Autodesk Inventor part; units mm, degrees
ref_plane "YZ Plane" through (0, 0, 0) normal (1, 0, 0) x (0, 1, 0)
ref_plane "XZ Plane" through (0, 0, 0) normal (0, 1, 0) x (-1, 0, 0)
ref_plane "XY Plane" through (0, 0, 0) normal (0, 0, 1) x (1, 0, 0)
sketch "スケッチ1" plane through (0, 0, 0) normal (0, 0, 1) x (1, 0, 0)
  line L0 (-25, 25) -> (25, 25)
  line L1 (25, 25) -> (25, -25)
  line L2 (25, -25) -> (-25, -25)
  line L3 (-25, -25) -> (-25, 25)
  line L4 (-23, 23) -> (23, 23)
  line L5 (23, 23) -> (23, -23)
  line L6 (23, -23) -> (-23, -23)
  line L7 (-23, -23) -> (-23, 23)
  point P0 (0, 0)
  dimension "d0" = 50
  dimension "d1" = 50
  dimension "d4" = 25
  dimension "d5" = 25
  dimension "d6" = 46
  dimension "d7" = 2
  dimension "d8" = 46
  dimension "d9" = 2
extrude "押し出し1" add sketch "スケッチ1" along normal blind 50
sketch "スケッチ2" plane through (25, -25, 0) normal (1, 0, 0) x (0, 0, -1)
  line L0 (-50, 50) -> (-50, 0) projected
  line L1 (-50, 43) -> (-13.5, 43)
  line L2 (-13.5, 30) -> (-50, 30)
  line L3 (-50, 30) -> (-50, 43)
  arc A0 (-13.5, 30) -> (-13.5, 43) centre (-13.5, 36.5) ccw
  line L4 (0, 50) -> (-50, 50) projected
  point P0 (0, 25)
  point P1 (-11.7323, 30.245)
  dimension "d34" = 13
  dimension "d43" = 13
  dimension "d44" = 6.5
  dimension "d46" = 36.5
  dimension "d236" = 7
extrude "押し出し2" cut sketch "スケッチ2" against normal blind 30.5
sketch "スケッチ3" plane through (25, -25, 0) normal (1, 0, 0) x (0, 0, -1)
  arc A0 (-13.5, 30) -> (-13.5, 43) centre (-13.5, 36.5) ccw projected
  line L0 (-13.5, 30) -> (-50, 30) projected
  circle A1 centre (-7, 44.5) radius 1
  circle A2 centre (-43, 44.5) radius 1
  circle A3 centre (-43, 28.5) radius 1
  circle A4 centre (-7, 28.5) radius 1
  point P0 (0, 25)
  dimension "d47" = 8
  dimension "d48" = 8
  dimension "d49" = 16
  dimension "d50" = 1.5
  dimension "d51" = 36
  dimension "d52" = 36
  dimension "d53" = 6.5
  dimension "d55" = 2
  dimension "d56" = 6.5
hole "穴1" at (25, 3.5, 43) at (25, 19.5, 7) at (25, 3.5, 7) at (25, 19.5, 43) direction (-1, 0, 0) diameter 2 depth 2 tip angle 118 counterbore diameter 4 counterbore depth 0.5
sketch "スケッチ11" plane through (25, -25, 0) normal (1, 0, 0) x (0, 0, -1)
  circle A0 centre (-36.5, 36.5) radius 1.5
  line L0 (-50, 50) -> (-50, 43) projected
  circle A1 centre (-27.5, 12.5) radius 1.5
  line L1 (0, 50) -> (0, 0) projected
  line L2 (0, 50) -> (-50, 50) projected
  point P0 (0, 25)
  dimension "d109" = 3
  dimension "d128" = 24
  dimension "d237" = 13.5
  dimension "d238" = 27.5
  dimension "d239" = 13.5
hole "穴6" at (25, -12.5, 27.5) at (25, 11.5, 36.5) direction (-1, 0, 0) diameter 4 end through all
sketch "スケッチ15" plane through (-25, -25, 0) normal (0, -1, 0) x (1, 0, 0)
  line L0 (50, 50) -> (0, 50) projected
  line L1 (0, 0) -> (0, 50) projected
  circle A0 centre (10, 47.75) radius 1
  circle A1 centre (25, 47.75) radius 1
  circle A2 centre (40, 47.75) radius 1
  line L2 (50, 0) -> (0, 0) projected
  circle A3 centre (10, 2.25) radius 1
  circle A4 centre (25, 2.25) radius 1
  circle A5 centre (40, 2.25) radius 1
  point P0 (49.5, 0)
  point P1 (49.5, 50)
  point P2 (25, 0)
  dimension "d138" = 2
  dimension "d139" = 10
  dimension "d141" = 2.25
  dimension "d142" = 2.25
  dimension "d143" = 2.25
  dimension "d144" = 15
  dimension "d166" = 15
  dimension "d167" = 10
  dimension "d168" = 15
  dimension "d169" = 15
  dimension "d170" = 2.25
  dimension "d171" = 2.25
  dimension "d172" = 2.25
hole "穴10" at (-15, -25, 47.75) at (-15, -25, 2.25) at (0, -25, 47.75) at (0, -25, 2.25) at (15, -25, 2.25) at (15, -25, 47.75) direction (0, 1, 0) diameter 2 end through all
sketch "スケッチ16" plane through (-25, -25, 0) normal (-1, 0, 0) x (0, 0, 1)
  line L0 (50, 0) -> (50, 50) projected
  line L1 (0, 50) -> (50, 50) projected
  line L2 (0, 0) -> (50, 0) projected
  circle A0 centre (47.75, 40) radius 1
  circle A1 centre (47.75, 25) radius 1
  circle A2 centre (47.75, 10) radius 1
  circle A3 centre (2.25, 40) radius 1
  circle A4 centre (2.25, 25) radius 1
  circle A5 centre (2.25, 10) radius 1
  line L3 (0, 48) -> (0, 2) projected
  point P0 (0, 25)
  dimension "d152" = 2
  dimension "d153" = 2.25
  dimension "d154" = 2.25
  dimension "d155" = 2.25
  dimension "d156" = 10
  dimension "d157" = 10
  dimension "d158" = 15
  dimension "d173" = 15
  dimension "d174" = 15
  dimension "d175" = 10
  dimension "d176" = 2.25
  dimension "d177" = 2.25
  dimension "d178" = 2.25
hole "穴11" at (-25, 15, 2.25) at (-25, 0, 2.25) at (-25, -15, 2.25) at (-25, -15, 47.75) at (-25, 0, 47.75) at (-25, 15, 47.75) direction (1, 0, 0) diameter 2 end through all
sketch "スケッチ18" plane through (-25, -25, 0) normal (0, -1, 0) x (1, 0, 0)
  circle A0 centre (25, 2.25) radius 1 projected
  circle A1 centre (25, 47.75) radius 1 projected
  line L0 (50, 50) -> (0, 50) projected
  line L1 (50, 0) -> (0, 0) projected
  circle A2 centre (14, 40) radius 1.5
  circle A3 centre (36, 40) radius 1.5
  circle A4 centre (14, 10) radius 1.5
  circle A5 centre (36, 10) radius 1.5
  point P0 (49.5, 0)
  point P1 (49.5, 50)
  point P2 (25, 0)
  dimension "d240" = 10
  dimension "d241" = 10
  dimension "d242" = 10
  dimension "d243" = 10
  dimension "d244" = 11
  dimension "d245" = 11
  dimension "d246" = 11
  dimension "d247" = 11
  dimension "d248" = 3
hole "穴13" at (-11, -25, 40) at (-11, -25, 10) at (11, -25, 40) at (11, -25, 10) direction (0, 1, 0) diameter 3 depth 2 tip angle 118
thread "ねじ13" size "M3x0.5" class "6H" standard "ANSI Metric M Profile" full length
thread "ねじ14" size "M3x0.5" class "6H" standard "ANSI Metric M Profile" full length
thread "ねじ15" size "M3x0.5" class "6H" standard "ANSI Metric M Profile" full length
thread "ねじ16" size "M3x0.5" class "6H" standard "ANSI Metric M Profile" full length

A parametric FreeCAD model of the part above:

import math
import FreeCAD as App
import Part
import Sketcher
from FreeCAD import Vector

doc = App.newDocument("Part")
body = doc.addObject("PartDesign::Body", "Body")

# Sketch on XY plane
sketch1 = doc.addObject("Sketcher::SketchObject", "Sketch")
body.addObject(sketch1)
sketch1.AttachmentSupport = (doc.XY_Plane, [""])
sketch1.MapMode = "FlatFace"
sketch1.addGeometry(Part.LineSegment(Vector(25, 25, 0), Vector(-25, 25, 0)), False)
sketch1.addGeometry(Part.LineSegment(Vector(-25, 25, 0), Vector(-25, -25, 0)), False)
sketch1.addGeometry(Part.LineSegment(Vector(-25, -25, 0), Vector(25, -25, 0)), False)
sketch1.addGeometry(Part.LineSegment(Vector(25, -25, 0), Vector(25, 25, 0)), False)
sketch1.addGeometry(Part.LineSegment(Vector(-23, -23, 0), Vector(-23, 23, 0)), False)
sketch1.addGeometry(Part.LineSegment(Vector(-23, 23, 0), Vector(23, 23, 0)), False)
sketch1.addGeometry(Part.LineSegment(Vector(23, 23, 0), Vector(23, -23, 0)), False)
sketch1.addGeometry(Part.LineSegment(Vector(23, -23, 0), Vector(-23, -23, 0)), False)
sketch1.addConstraint(Sketcher.Constraint("Coincident", 0, 2, 1, 1))
sketch1.addConstraint(Sketcher.Constraint("Coincident", 1, 2, 2, 1))
sketch1.addConstraint(Sketcher.Constraint("Coincident", 2, 2, 3, 1))
sketch1.addConstraint(Sketcher.Constraint("Coincident", 3, 2, 0, 1))
sketch1.addConstraint(Sketcher.Constraint("Coincident", 4, 2, 5, 1))
sketch1.addConstraint(Sketcher.Constraint("Coincident", 5, 2, 6, 1))
sketch1.addConstraint(Sketcher.Constraint("Coincident", 6, 2, 7, 1))
sketch1.addConstraint(Sketcher.Constraint("Coincident", 7, 2, 4, 1))
sketch1.addConstraint(Sketcher.Constraint("Horizontal", 0))
sketch1.addConstraint(Sketcher.Constraint("Vertical", 1))
sketch1.addConstraint(Sketcher.Constraint("Horizontal", 2))
sketch1.addConstraint(Sketcher.Constraint("Vertical", 3))
sketch1.addConstraint(Sketcher.Constraint("Vertical", 4))
sketch1.addConstraint(Sketcher.Constraint("Horizontal", 5))
sketch1.addConstraint(Sketcher.Constraint("Vertical", 6))
sketch1.addConstraint(Sketcher.Constraint("Horizontal", 7))
sketch1.addConstraint(Sketcher.Constraint("Symmetric", 0, 2, 2, 2, -1, 1))
sketch1.addConstraint(Sketcher.Constraint("Symmetric", 4, 2, 6, 2, -1, 1))
sketch1.addConstraint(Sketcher.Constraint("Equal", 2, 1))
sketch1.addConstraint(Sketcher.Constraint("Equal", 7, 4))
sketch1.addConstraint(Sketcher.Constraint("DistanceX", 0, 2, 0, 1, 50.0))
sketch1.addConstraint(Sketcher.Constraint("DistanceX", 5, 1, 5, 2, 46.0))
pad1 = doc.addObject("PartDesign::Pad", "Pad")
body.addObject(pad1)
pad1.Profile = sketch1
pad1.Length = 50

# Sketch on YZ plane
sketch2 = doc.addObject("Sketcher::SketchObject", "Sketch001")
body.addObject(sketch2)
sketch2.AttachmentSupport = (doc.YZ_Plane, [""])
sketch2.MapMode = "FlatFace"
sketch2.AttachmentOffset = App.Placement(Vector(0, 0, 25), App.Rotation())
sketch2.addGeometry(Part.LineSegment(Vector(18, 14, 0), Vector(18, 50, 0)), False)
sketch2.addGeometry(Part.LineSegment(Vector(18, 50, 0), Vector(5, 50, 0)), False)
sketch2.addGeometry(Part.LineSegment(Vector(5, 50, 0), Vector(5, 14, 0)), False)
sketch2.addGeometry(Part.ArcOfCircle(Part.Circle(Vector(12, 14, 0), Vector(0, 0, 1), 6), math.radians(180), math.radians(360)), False)
sketch2.addConstraint(Sketcher.Constraint("Coincident", 0, 2, 1, 1))
sketch2.addConstraint(Sketcher.Constraint("Coincident", 1, 2, 2, 1))
sketch2.addConstraint(Sketcher.Constraint("Tangent", 2, 2, 3, 1))
sketch2.addConstraint(Sketcher.Constraint("Tangent", 3, 2, 0, 1))
sketch2.addConstraint(Sketcher.Constraint("Vertical", 0))
sketch2.addConstraint(Sketcher.Constraint("Horizontal", 1))
sketch2.addConstraint(Sketcher.Constraint("Vertical", 2))
sketch2.addConstraint(Sketcher.Constraint("Radius", 3, 6.5))
sketch2.addConstraint(Sketcher.Constraint("DistanceY", 0, 1, 0, 2, 36.5))
sketch2.addConstraint(Sketcher.Constraint("DistanceX", -1, 1, 0, 2, 18.0))
sketch2.addConstraint(Sketcher.Constraint("DistanceY", -1, 1, 0, 2, 50.0))
pocket1 = doc.addObject("PartDesign::Pocket", "Pocket")
body.addObject(pocket1)
pocket1.Profile = sketch2
pocket1.Length = 30.5

# Sketch on YZ plane
sketch3 = doc.addObject("Sketcher::SketchObject", "Sketch002")
body.addObject(sketch3)
sketch3.AttachmentSupport = (doc.YZ_Plane, [""])
sketch3.MapMode = "FlatFace"
sketch3.AttachmentOffset = App.Placement(Vector(0, 0, 25), App.Rotation())
sketch3.addGeometry(Part.Circle(Vector(3.5, 43, 0), Vector(0, 0, 1), 1), False)
sketch3.addGeometry(Part.Circle(Vector(19.5, 7, 0), Vector(0, 0, 1), 1), False)
sketch3.addGeometry(Part.Circle(Vector(3.5, 7, 0), Vector(0, 0, 1), 1), False)
sketch3.addGeometry(Part.Circle(Vector(19.5, 43, 0), Vector(0, 0, 1), 1), False)
sketch3.addConstraint(Sketcher.Constraint("Equal", 0, 1))
sketch3.addConstraint(Sketcher.Constraint("Equal", 1, 2))
sketch3.addConstraint(Sketcher.Constraint("Equal", 2, 3))
sketch3.addConstraint(Sketcher.Constraint("Horizontal", 1, 3, 2, 3))
sketch3.addConstraint(Sketcher.Constraint("Horizontal", 0, 3, 3, 3))
sketch3.addConstraint(Sketcher.Constraint("Vertical", 0, 3, 2, 3))
sketch3.addConstraint(Sketcher.Constraint("Vertical", 1, 3, 3, 3))
sketch3.addConstraint(Sketcher.Constraint("Diameter", 0, 2.0))
sketch3.addConstraint(Sketcher.Constraint("DistanceY", -1, 1, 0, 3, 43.0))
sketch3.addConstraint(Sketcher.Constraint("DistanceY", -1, 1, 1, 3, 7.0))
sketch3.addConstraint(Sketcher.Constraint("DistanceX", 0, 3, 1, 3, 16.0))
sketch3.addConstraint(Sketcher.Constraint("DistanceX", -1, 1, 0, 3, 3.5))
doc.recompute()
hole = doc.addObject("PartDesign::Hole", "Hole")
body.addObject(hole)
hole.Profile = sketch3
hole.ThreadType = "None"
hole.Diameter = 2
hole.DepthType = "Dimension"
hole.Depth = 2
hole.DrillPoint = "Angled"
hole.DrillPointAngle = 118
hole.HoleCutType = "Counterbore"
hole.HoleCutDiameter = 4
hole.HoleCutDepth = 0.5

# Sketch on YZ plane
sketch4 = doc.addObject("Sketcher::SketchObject", "Sketch003")
body.addObject(sketch4)
sketch4.AttachmentSupport = (doc.YZ_Plane, [""])
sketch4.MapMode = "FlatFace"
sketch4.AttachmentOffset = App.Placement(Vector(0, 0, 25), App.Rotation())
sketch4.addGeometry(Part.Circle(Vector(-12.5, 27.5, 0), Vector(0, 0, 1), 2), False)
sketch4.addGeometry(Part.Circle(Vector(11.5, 36.5, 0), Vector(0, 0, 1), 2), False)
sketch4.addConstraint(Sketcher.Constraint("Equal", 0, 1))
sketch4.addConstraint(Sketcher.Constraint("Diameter", 0, 4.0))
sketch4.addConstraint(Sketcher.Constraint("DistanceX", 0, 3, 1, 3, 24.0))
sketch4.addConstraint(Sketcher.Constraint("DistanceY", 0, 3, 1, 3, 9.0))
sketch4.addConstraint(Sketcher.Constraint("DistanceX", 0, 3, -1, 1, 12.5))
sketch4.addConstraint(Sketcher.Constraint("DistanceY", -1, 1, 0, 3, 27.5))
doc.recompute()
hole2 = doc.addObject("PartDesign::Hole", "Hole001")
body.addObject(hole2)
hole2.Profile = sketch4
hole2.ThreadType = "None"
hole2.Diameter = 4
hole2.DepthType = "ThroughAll"

# Sketch on XZ plane
sketch5 = doc.addObject("Sketcher::SketchObject", "Sketch004")
body.addObject(sketch5)
sketch5.AttachmentSupport = (doc.XZ_Plane, [""])
sketch5.MapMode = "FlatFace"
sketch5.AttachmentOffset = App.Placement(Vector(0, 0, 25), App.Rotation())
sketch5.addGeometry(Part.Circle(Vector(-15, 47.8, 0), Vector(0, 0, 1), 1), False)
sketch5.addGeometry(Part.Circle(Vector(-15, 2.2, 0), Vector(0, 0, 1), 1), False)
sketch5.addGeometry(Part.Circle(Vector(0, 47.8, 0), Vector(0, 0, 1), 1), False)
sketch5.addGeometry(Part.Circle(Vector(0, 2.2, 0), Vector(0, 0, 1), 1), False)
sketch5.addGeometry(Part.Circle(Vector(15, 2.2, 0), Vector(0, 0, 1), 1), False)
sketch5.addGeometry(Part.Circle(Vector(15, 47.8, 0), Vector(0, 0, 1), 1), False)
sketch5.addConstraint(Sketcher.Constraint("Equal", 0, 1))
sketch5.addConstraint(Sketcher.Constraint("Equal", 1, 2))
sketch5.addConstraint(Sketcher.Constraint("Equal", 2, 3))
sketch5.addConstraint(Sketcher.Constraint("Equal", 3, 4))
sketch5.addConstraint(Sketcher.Constraint("Equal", 4, 5))
sketch5.addConstraint(Sketcher.Constraint("Symmetric", 1, 3, 4, 3, -2))
sketch5.addConstraint(Sketcher.Constraint("Symmetric", 0, 3, 5, 3, -2))
sketch5.addConstraint(Sketcher.Constraint("PointOnObject", 2, 3, -2))
sketch5.addConstraint(Sketcher.Constraint("PointOnObject", 3, 3, -2))
sketch5.addConstraint(Sketcher.Constraint("Horizontal", 0, 3, 2, 3))
sketch5.addConstraint(Sketcher.Constraint("Horizontal", 1, 3, 3, 3))
sketch5.addConstraint(Sketcher.Constraint("Vertical", 0, 3, 1, 3))
sketch5.addConstraint(Sketcher.Constraint("Diameter", 0, 2.0))
sketch5.addConstraint(Sketcher.Constraint("DistanceX", 0, 3, -1, 1, 15.0))
sketch5.addConstraint(Sketcher.Constraint("DistanceY", 1, 3, 0, 3, 45.5))
sketch5.addConstraint(Sketcher.Constraint("DistanceY", -1, 1, 0, 3, 47.75))
doc.recompute()
hole3 = doc.addObject("PartDesign::Hole", "Hole002")
body.addObject(hole3)
hole3.Profile = sketch5
hole3.ThreadType = "None"
hole3.Diameter = 2
hole3.DepthType = "ThroughAll"

# Sketch on YZ plane
sketch6 = doc.addObject("Sketcher::SketchObject", "Sketch005")
body.addObject(sketch6)
sketch6.AttachmentSupport = (doc.YZ_Plane, [""])
sketch6.MapMode = "FlatFace"
sketch6.AttachmentOffset = App.Placement(Vector(0, 0, -25), App.Rotation())
sketch6.addGeometry(Part.Circle(Vector(15, 2.2, 0), Vector(0, 0, 1), 1), False)
sketch6.addGeometry(Part.Circle(Vector(0, 2.2, 0), Vector(0, 0, 1), 1), False)
sketch6.addGeometry(Part.Circle(Vector(-15, 2.2, 0), Vector(0, 0, 1), 1), False)
sketch6.addGeometry(Part.Circle(Vector(-15, 47.8, 0), Vector(0, 0, 1), 1), False)
sketch6.addGeometry(Part.Circle(Vector(0, 47.8, 0), Vector(0, 0, 1), 1), False)
sketch6.addGeometry(Part.Circle(Vector(15, 47.8, 0), Vector(0, 0, 1), 1), False)
sketch6.addConstraint(Sketcher.Constraint("Equal", 0, 1))
sketch6.addConstraint(Sketcher.Constraint("Equal", 1, 2))
sketch6.addConstraint(Sketcher.Constraint("Equal", 2, 3))
sketch6.addConstraint(Sketcher.Constraint("Equal", 3, 4))
sketch6.addConstraint(Sketcher.Constraint("Equal", 4, 5))
sketch6.addConstraint(Sketcher.Constraint("Symmetric", 0, 3, 2, 3, -2))
sketch6.addConstraint(Sketcher.Constraint("Symmetric", 3, 3, 5, 3, -2))
sketch6.addConstraint(Sketcher.Constraint("PointOnObject", 1, 3, -2))
sketch6.addConstraint(Sketcher.Constraint("PointOnObject", 4, 3, -2))
sketch6.addConstraint(Sketcher.Constraint("Horizontal", 0, 3, 1, 3))
sketch6.addConstraint(Sketcher.Constraint("Horizontal", 3, 3, 4, 3))
sketch6.addConstraint(Sketcher.Constraint("Vertical", 2, 3, 3, 3))
sketch6.addConstraint(Sketcher.Constraint("Diameter", 0, 2.0))
sketch6.addConstraint(Sketcher.Constraint("DistanceX", -1, 1, 0, 3, 15.0))
sketch6.addConstraint(Sketcher.Constraint("DistanceY", 2, 3, 3, 3, 45.5))
sketch6.addConstraint(Sketcher.Constraint("DistanceY", -1, 1, 0, 3, 2.25))
doc.recompute()
hole4 = doc.addObject("PartDesign::Hole", "Hole003")
body.addObject(hole4)
hole4.Profile = sketch6
hole4.ThreadType = "None"
hole4.Diameter = 2
hole4.DepthType = "ThroughAll"
hole4.Reversed = True

# Sketch on XZ plane
sketch7 = doc.addObject("Sketcher::SketchObject", "Sketch006")
body.addObject(sketch7)
sketch7.AttachmentSupport = (doc.XZ_Plane, [""])
sketch7.MapMode = "FlatFace"
sketch7.AttachmentOffset = App.Placement(Vector(0, 0, 25), App.Rotation())
sketch7.addGeometry(Part.Circle(Vector(-11, 40, 0), Vector(0, 0, 1), 1.5), False)
sketch7.addGeometry(Part.Circle(Vector(-11, 10, 0), Vector(0, 0, 1), 1.5), False)
sketch7.addGeometry(Part.Circle(Vector(11, 40, 0), Vector(0, 0, 1), 1.5), False)
sketch7.addGeometry(Part.Circle(Vector(11, 10, 0), Vector(0, 0, 1), 1.5), False)
sketch7.addConstraint(Sketcher.Constraint("Equal", 0, 1))
sketch7.addConstraint(Sketcher.Constraint("Equal", 1, 2))
sketch7.addConstraint(Sketcher.Constraint("Equal", 2, 3))
sketch7.addConstraint(Sketcher.Constraint("Symmetric", 0, 3, 2, 3, -2))
sketch7.addConstraint(Sketcher.Constraint("Symmetric", 1, 3, 3, 3, -2))
sketch7.addConstraint(Sketcher.Constraint("Vertical", 0, 3, 1, 3))
sketch7.addConstraint(Sketcher.Constraint("Diameter", 0, 3.0))
sketch7.addConstraint(Sketcher.Constraint("DistanceX", 0, 3, -1, 1, 11.0))
sketch7.addConstraint(Sketcher.Constraint("DistanceY", -1, 1, 0, 3, 40.0))
sketch7.addConstraint(Sketcher.Constraint("DistanceY", -1, 1, 1, 3, 10.0))
doc.recompute()
hole5 = doc.addObject("PartDesign::Hole", "Hole004")
body.addObject(hole5)
hole5.Profile = sketch7
hole5.ThreadType = "None"
hole5.Diameter = 3
hole5.DepthType = "Dimension"
hole5.Depth = 2
hole5.DrillPoint = "Angled"
hole5.DrillPointAngle = 118

doc.recompute()
